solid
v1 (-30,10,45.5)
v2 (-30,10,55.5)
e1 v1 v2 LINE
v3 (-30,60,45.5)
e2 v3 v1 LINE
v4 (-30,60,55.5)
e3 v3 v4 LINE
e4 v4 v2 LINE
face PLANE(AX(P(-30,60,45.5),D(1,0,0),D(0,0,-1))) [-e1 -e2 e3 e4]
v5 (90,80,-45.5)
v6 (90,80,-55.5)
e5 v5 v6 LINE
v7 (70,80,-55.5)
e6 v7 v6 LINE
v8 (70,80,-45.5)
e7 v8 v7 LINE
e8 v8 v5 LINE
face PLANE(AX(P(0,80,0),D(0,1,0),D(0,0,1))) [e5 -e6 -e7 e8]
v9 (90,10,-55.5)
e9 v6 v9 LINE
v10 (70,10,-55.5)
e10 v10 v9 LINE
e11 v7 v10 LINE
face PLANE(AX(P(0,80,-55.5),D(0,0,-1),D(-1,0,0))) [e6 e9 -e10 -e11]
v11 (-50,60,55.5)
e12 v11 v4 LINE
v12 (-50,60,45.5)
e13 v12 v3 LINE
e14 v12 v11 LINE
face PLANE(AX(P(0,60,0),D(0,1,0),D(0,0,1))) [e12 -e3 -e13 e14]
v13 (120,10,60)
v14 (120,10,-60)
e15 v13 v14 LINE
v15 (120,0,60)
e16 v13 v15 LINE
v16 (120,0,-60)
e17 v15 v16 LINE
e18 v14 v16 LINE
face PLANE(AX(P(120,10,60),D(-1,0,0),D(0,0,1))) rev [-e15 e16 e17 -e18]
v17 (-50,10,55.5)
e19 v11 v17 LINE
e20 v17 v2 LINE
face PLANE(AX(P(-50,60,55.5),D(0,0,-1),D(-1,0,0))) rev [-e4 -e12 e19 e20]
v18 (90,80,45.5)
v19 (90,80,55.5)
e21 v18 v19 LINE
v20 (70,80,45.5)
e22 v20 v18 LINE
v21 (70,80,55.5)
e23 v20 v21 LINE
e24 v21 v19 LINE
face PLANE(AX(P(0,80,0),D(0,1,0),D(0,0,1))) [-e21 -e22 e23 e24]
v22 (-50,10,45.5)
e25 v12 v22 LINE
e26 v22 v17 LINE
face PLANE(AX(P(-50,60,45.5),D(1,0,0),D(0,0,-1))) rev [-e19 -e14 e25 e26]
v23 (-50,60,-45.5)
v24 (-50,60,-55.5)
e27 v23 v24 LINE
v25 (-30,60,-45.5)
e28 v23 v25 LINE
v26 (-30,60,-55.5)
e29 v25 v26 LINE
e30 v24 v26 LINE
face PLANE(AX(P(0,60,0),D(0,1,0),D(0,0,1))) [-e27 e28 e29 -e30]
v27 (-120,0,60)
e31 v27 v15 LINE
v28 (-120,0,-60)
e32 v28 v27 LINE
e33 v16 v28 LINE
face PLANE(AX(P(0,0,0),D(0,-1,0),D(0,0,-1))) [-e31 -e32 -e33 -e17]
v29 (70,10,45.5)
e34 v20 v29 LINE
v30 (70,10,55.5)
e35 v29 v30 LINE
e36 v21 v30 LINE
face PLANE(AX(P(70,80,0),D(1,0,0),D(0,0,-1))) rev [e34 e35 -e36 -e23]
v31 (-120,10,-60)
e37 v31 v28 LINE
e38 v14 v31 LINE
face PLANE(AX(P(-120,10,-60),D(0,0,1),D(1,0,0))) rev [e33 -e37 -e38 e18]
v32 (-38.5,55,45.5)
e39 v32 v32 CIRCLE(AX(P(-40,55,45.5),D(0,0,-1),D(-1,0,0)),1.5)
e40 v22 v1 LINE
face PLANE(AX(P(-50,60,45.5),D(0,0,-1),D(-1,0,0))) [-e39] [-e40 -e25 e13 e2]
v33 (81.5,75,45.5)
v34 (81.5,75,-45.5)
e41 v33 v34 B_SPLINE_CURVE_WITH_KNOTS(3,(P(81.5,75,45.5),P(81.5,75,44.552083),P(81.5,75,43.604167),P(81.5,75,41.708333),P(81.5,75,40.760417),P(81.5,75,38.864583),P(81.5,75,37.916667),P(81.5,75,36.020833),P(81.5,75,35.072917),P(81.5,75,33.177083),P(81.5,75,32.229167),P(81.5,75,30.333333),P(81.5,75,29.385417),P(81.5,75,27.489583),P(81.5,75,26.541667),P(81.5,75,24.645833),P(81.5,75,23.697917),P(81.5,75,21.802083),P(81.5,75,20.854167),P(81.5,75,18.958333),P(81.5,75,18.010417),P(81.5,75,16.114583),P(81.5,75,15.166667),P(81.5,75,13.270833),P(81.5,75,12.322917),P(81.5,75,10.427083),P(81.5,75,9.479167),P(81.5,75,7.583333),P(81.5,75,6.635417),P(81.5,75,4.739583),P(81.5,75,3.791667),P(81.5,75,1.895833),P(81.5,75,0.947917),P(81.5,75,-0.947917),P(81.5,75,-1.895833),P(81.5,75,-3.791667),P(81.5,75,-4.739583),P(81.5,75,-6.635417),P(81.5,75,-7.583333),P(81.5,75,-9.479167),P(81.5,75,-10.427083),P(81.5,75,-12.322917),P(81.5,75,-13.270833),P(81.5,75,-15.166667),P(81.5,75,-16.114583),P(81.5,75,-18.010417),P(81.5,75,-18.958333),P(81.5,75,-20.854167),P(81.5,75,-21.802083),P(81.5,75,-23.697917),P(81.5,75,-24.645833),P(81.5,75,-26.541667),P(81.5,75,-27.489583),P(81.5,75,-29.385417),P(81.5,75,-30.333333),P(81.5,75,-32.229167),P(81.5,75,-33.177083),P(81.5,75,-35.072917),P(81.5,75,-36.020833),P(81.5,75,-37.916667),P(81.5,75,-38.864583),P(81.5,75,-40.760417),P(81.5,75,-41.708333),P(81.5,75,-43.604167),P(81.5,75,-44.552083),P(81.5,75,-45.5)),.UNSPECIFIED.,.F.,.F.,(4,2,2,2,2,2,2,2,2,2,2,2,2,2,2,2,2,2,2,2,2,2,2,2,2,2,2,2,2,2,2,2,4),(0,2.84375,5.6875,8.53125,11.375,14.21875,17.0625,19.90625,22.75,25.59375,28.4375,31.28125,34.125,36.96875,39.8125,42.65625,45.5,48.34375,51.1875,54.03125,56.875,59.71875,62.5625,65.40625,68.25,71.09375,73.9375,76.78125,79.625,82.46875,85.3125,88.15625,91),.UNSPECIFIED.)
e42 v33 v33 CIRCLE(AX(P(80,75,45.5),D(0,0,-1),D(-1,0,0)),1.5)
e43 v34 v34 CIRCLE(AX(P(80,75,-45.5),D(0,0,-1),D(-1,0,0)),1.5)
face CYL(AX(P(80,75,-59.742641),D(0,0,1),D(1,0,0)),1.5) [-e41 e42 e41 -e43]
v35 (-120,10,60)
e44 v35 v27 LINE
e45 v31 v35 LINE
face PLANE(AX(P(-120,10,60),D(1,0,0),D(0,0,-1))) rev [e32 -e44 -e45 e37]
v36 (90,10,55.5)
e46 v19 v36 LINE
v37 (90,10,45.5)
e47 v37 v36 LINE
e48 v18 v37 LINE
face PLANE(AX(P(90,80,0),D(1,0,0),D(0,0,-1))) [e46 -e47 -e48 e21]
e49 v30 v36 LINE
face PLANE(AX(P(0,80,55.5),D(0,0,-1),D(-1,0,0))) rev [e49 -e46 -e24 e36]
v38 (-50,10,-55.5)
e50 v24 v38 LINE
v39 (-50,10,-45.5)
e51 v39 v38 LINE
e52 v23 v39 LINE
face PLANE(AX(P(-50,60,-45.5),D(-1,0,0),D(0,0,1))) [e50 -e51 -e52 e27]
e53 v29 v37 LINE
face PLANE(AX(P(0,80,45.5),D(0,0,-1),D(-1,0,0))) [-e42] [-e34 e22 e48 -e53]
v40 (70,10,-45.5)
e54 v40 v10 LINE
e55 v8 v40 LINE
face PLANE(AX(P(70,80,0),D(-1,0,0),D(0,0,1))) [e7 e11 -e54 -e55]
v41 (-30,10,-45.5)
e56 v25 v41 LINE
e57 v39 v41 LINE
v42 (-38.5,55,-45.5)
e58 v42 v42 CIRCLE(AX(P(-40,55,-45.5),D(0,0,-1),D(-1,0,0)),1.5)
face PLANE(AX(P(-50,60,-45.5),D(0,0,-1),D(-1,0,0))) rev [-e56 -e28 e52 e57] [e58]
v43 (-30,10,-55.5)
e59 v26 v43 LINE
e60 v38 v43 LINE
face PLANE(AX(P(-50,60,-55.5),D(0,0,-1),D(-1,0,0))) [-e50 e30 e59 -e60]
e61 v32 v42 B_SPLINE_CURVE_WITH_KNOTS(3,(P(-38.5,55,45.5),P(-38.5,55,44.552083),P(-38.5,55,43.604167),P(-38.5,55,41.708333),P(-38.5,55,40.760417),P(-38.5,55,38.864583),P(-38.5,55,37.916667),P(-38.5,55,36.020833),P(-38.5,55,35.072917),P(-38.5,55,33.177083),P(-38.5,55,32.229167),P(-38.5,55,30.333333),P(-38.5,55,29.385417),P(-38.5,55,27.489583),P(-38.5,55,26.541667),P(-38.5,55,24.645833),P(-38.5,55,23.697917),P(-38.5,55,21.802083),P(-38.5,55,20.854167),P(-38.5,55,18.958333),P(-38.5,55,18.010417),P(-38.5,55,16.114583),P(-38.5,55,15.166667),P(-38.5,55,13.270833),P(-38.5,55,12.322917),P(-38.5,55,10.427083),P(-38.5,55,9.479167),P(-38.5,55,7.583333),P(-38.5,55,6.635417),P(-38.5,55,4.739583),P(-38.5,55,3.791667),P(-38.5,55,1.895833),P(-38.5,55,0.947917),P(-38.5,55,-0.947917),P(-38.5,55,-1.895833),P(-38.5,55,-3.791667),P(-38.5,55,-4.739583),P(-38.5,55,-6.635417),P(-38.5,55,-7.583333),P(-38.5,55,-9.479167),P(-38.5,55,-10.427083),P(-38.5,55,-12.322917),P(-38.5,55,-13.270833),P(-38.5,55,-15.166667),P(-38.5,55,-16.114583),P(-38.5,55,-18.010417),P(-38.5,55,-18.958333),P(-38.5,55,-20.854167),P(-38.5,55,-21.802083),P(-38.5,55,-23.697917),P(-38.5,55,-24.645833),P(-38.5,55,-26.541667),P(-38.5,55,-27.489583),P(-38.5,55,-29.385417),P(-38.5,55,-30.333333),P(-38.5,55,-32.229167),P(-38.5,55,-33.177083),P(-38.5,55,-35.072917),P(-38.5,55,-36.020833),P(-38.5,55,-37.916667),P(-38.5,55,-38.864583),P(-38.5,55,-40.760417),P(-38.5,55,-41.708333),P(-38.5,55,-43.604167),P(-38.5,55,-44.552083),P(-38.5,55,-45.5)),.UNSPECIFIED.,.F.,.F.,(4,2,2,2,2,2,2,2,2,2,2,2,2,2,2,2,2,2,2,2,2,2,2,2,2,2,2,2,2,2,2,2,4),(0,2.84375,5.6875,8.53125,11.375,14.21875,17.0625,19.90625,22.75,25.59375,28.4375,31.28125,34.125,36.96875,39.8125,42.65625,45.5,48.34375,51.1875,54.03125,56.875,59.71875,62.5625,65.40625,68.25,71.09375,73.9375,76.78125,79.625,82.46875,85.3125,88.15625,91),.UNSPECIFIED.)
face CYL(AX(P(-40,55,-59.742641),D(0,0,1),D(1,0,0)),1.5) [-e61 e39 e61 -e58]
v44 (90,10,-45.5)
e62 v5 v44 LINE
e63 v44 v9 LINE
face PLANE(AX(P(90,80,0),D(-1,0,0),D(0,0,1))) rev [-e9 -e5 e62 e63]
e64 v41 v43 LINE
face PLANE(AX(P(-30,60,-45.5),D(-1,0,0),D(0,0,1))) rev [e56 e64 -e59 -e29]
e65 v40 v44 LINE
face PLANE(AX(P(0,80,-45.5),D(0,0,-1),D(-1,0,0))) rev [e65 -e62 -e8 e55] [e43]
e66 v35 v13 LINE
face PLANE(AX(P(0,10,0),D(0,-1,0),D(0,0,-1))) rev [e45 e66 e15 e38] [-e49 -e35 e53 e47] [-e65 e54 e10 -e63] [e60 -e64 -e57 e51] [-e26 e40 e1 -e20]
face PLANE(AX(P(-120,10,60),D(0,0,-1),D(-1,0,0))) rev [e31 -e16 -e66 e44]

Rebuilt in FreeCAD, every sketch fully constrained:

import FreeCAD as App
import Part
import Sketcher


def add_polygon(sketch, points):
    """Adds a closed chain of lines whose ends are joined by coincident constraints."""
    first, n = sketch.GeometryCount, len(points)
    for a, b in zip(points, points[1:] + points[:1]):
        sketch.addGeometry(Part.LineSegment(App.Vector(*a, 0), App.Vector(*b, 0)), False)
    for i in range(n):
        sketch.addConstraint(Sketcher.Constraint("Coincident", first + i, 2, first + (i + 1) % n, 1))

doc = App.newDocument("Part")
body = doc.addObject("PartDesign::Body", "Body")

sketch1 = body.newObject("Sketcher::SketchObject", "Sketch")
sketch1.AttachmentSupport = (doc.getObject("XZ_Plane"), [""])
sketch1.MapMode = "FlatFace"
add_polygon(sketch1, [(-120, -60), (-120, 60), (120, 60), (120, -60)])
sketch1.addConstraint([
    Sketcher.Constraint("Vertical", 0),
    Sketcher.Constraint("Horizontal", 1),
    Sketcher.Constraint("Vertical", 2),
    Sketcher.Constraint("Horizontal", 3),
    Sketcher.Constraint("Symmetric", 0, 2, 2, 2, -1, 1),
    Sketcher.Constraint("DistanceX", 1, 1, 1, 2, 240.0),
    Sketcher.Constraint("DistanceY", 0, 1, 0, 2, 120.0),
])
pad1 = body.newObject("PartDesign::Pad", "Pad")
pad1.Profile = sketch1
pad1.Length = 10
pad1.Reversed = True

sketch2 = body.newObject("Sketcher::SketchObject", "Sketch001")
sketch2.AttachmentSupport = (doc.getObject("XZ_Plane"), [""])
sketch2.MapMode = "FlatFace"
sketch2.AttachmentOffset = App.Placement(App.Vector(0, 0, -10), App.Rotation())
add_polygon(sketch2, [(-50, -55.5), (-50, -45.5), (-30, -45.5), (-30, -55.5)])
add_polygon(sketch2, [(-50, 45.5), (-50, 55.5), (-30, 55.5), (-30, 45.5)])
sketch2.addConstraint([
    Sketcher.Constraint("Vertical", 0),
    Sketcher.Constraint("Horizontal", 1),
    Sketcher.Constraint("Vertical", 2),
    Sketcher.Constraint("Horizontal", 3),
    Sketcher.Constraint("Vertical", 4),
    Sketcher.Constraint("Horizontal", 5),
    Sketcher.Constraint("Vertical", 6),
    Sketcher.Constraint("Horizontal", 7),
    Sketcher.Constraint("Symmetric", 3, 2, 4, 2, -1),
    Sketcher.Constraint("Symmetric", 1, 2, 6, 2, -1),
    Sketcher.Constraint("DistanceX", 1, 1, 1, 2, 20.0),
    Sketcher.Constraint("DistanceY", 0, 1, 0, 2, 10.0),
    Sketcher.Constraint("DistanceX", 0, 2, -1, 1, 50.0),
    Sketcher.Constraint("DistanceY", 0, 2, 4, 2, 101.0),
])
pad2 = body.newObject("PartDesign::Pad", "Pad001")
pad2.Profile = sketch2
pad2.Length = 50
pad2.Reversed = True

sketch3 = body.newObject("Sketcher::SketchObject", "Sketch002")
sketch3.AttachmentSupport = (doc.getObject("XZ_Plane"), [""])
sketch3.MapMode = "FlatFace"
sketch3.AttachmentOffset = App.Placement(App.Vector(0, 0, -10), App.Rotation())
add_polygon(sketch3, [(70, -55.5), (70, -45.5), (90, -45.5), (90, -55.5)])
add_polygon(sketch3, [(70, 45.5), (70, 55.5), (90, 55.5), (90, 45.5)])
sketch3.addConstraint([
    Sketcher.Constraint("Vertical", 0),
    Sketcher.Constraint("Horizontal", 1),
    Sketcher.Constraint("Vertical", 2),
    Sketcher.Constraint("Horizontal", 3),
    Sketcher.Constraint("Vertical", 4),
    Sketcher.Constraint("Horizontal", 5),
    Sketcher.Constraint("Vertical", 6),
    Sketcher.Constraint("Horizontal", 7),
    Sketcher.Constraint("Symmetric", 3, 2, 4, 2, -1),
    Sketcher.Constraint("Symmetric", 1, 2, 6, 2, -1),
    Sketcher.Constraint("DistanceX", 1, 1, 1, 2, 20.0),
    Sketcher.Constraint("DistanceY", 0, 1, 0, 2, 10.0),
    Sketcher.Constraint("DistanceX", -1, 1, 0, 2, 70.0),
    Sketcher.Constraint("DistanceY", 0, 2, 4, 2, 101.0),
])
pad3 = body.newObject("PartDesign::Pad", "Pad002")
pad3.Profile = sketch3
pad3.Length = 70
pad3.Reversed = True

sketch4 = body.newObject("Sketcher::SketchObject", "Sketch003")
sketch4.AttachmentSupport = (doc.getObject("XY_Plane"), [""])
sketch4.MapMode = "FlatFace"
sketch4.AttachmentOffset = App.Placement(App.Vector(0, 0, 55.5), App.Rotation())
sketch4.addGeometry([
    Part.Circle(App.Vector(-40, 55, 0), App.Vector(0, 0, 1), 1.5),
    Part.Circle(App.Vector(80, 75, 0), App.Vector(0, 0, 1), 1.5),
], False)
sketch4.addConstraint([
    Sketcher.Constraint("Equal", 0, 1),
    Sketcher.Constraint("Diameter", 0, 3.0),
    Sketcher.Constraint("DistanceX", 0, 3, -1, 1, 40.0),
    Sketcher.Constraint("DistanceY", -1, 1, 0, 3, 55.0),
    Sketcher.Constraint("DistanceX", -1, 1, 1, 3, 80.0),
    Sketcher.Constraint("DistanceY", -1, 1, 1, 3, 75.0),
])
pad4 = body.newObject("PartDesign::Pad", "Pad003")
pad4.Profile = sketch4
pad4.Length = 111
pad4.Reversed = True

doc.recompute()
